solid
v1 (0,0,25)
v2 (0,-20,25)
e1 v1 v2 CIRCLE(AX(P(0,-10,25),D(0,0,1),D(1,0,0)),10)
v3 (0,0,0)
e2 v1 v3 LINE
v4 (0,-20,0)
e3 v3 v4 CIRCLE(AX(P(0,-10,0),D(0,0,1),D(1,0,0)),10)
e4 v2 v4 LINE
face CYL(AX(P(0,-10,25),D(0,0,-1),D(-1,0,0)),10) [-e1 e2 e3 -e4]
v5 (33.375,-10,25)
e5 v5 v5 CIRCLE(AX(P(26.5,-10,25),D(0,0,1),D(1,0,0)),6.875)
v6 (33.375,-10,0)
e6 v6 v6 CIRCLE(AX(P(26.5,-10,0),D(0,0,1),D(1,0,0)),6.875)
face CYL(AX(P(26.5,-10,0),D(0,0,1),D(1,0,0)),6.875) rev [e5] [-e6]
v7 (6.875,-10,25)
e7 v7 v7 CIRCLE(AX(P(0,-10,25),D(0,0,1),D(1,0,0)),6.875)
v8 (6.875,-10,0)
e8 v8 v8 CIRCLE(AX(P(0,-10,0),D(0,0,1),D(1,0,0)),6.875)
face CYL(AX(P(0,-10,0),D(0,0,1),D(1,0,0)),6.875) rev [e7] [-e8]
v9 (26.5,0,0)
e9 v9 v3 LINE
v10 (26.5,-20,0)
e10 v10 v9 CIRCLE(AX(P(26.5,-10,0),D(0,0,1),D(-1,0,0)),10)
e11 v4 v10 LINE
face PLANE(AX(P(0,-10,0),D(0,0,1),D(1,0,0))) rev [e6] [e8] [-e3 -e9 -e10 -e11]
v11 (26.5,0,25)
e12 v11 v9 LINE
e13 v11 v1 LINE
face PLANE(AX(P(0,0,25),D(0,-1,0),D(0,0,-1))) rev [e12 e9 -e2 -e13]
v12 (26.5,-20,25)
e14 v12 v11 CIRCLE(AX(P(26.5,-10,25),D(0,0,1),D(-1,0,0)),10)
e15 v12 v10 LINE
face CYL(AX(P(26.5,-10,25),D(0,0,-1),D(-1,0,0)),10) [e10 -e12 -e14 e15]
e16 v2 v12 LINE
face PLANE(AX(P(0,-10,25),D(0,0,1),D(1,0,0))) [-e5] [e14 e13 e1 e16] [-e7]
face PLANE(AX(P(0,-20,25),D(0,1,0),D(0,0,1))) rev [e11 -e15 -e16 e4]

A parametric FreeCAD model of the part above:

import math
import FreeCAD as App
import Part
import Sketcher
Q = App.Units.Quantity

doc = App.newDocument("Part")
body = doc.addObject("PartDesign::Body", "Body")

# Sketch on XY plane
sketch1 = doc.addObject("Sketcher::SketchObject", "Sketch")
body.addObject(sketch1)
sketch1.AttachmentSupport = (doc.XY_Plane, [""])
sketch1.MapMode = "FlatFace"
sketch1.addGeometry([
    Part.LineSegment(App.Vector(26.5, 0, 0), App.Vector(0, 0, 0)),
    Part.ArcOfCircle(Part.Circle(App.Vector(0, -10, 0), App.Vector(0, 0, 1), 10), math.radians(90), math.radians(270)),
    Part.LineSegment(App.Vector(0, -20, 0), App.Vector(26.5, -20, 0)),
    Part.ArcOfCircle(Part.Circle(App.Vector(26.5, -10, 0), App.Vector(0, 0, 1), 10), math.radians(-90), math.radians(90)),
], False)
sketch1.addConstraint([
    Sketcher.Constraint("Tangent", 0, 2, 1, 1),
    Sketcher.Constraint("Tangent", 1, 2, 2, 1),
    Sketcher.Constraint("Tangent", 2, 2, 3, 1),
    Sketcher.Constraint("Tangent", 3, 2, 0, 1),
    Sketcher.Constraint("Horizontal", 0),
    Sketcher.Constraint("Horizontal", 2),
    Sketcher.Constraint("Coincident", 0, 2, -1, 1),
    Sketcher.Constraint("Radius", 1, Q("10 mm")),
    Sketcher.Constraint("DistanceX", 0, 2, 0, 1, Q("26.5 mm")),
])
pad1 = doc.addObject("PartDesign::Pad", "Pad")
body.addObject(pad1)
pad1.Profile = sketch1
pad1.Length = 25

# Sketch on XY plane
sketch2 = doc.addObject("Sketcher::SketchObject", "Sketch001")
body.addObject(sketch2)
sketch2.AttachmentSupport = (doc.XY_Plane, [""])
sketch2.MapMode = "FlatFace"
sketch2.AttachmentOffset = App.Placement(App.Vector(0, 0, 25), App.Rotation())
sketch2.addGeometry([
    Part.Circle(App.Vector(0, -10, 0), App.Vector(0, 0, 1), 6.875),
    Part.Circle(App.Vector(26.5, -10, 0), App.Vector(0, 0, 1), 6.875),
], False)
sketch2.addConstraint([
    Sketcher.Constraint("Equal", 0, 1),
    Sketcher.Constraint("PointOnObject", 0, 3, -2),
    Sketcher.Constraint("Horizontal", 0, 3, 1, 3),
    Sketcher.Constraint("Diameter", 0, Q("13.75 mm")),
    Sketcher.Constraint("DistanceY", 0, 3, -1, 1, Q("10 mm")),
    Sketcher.Constraint("DistanceX", -1, 1, 1, 3, Q("26.5 mm")),
])
pocket1 = doc.addObject("PartDesign::Pocket", "Pocket")
body.addObject(pocket1)
pocket1.Profile = sketch2
pocket1.Type = "ThroughAll"

doc.recompute()
